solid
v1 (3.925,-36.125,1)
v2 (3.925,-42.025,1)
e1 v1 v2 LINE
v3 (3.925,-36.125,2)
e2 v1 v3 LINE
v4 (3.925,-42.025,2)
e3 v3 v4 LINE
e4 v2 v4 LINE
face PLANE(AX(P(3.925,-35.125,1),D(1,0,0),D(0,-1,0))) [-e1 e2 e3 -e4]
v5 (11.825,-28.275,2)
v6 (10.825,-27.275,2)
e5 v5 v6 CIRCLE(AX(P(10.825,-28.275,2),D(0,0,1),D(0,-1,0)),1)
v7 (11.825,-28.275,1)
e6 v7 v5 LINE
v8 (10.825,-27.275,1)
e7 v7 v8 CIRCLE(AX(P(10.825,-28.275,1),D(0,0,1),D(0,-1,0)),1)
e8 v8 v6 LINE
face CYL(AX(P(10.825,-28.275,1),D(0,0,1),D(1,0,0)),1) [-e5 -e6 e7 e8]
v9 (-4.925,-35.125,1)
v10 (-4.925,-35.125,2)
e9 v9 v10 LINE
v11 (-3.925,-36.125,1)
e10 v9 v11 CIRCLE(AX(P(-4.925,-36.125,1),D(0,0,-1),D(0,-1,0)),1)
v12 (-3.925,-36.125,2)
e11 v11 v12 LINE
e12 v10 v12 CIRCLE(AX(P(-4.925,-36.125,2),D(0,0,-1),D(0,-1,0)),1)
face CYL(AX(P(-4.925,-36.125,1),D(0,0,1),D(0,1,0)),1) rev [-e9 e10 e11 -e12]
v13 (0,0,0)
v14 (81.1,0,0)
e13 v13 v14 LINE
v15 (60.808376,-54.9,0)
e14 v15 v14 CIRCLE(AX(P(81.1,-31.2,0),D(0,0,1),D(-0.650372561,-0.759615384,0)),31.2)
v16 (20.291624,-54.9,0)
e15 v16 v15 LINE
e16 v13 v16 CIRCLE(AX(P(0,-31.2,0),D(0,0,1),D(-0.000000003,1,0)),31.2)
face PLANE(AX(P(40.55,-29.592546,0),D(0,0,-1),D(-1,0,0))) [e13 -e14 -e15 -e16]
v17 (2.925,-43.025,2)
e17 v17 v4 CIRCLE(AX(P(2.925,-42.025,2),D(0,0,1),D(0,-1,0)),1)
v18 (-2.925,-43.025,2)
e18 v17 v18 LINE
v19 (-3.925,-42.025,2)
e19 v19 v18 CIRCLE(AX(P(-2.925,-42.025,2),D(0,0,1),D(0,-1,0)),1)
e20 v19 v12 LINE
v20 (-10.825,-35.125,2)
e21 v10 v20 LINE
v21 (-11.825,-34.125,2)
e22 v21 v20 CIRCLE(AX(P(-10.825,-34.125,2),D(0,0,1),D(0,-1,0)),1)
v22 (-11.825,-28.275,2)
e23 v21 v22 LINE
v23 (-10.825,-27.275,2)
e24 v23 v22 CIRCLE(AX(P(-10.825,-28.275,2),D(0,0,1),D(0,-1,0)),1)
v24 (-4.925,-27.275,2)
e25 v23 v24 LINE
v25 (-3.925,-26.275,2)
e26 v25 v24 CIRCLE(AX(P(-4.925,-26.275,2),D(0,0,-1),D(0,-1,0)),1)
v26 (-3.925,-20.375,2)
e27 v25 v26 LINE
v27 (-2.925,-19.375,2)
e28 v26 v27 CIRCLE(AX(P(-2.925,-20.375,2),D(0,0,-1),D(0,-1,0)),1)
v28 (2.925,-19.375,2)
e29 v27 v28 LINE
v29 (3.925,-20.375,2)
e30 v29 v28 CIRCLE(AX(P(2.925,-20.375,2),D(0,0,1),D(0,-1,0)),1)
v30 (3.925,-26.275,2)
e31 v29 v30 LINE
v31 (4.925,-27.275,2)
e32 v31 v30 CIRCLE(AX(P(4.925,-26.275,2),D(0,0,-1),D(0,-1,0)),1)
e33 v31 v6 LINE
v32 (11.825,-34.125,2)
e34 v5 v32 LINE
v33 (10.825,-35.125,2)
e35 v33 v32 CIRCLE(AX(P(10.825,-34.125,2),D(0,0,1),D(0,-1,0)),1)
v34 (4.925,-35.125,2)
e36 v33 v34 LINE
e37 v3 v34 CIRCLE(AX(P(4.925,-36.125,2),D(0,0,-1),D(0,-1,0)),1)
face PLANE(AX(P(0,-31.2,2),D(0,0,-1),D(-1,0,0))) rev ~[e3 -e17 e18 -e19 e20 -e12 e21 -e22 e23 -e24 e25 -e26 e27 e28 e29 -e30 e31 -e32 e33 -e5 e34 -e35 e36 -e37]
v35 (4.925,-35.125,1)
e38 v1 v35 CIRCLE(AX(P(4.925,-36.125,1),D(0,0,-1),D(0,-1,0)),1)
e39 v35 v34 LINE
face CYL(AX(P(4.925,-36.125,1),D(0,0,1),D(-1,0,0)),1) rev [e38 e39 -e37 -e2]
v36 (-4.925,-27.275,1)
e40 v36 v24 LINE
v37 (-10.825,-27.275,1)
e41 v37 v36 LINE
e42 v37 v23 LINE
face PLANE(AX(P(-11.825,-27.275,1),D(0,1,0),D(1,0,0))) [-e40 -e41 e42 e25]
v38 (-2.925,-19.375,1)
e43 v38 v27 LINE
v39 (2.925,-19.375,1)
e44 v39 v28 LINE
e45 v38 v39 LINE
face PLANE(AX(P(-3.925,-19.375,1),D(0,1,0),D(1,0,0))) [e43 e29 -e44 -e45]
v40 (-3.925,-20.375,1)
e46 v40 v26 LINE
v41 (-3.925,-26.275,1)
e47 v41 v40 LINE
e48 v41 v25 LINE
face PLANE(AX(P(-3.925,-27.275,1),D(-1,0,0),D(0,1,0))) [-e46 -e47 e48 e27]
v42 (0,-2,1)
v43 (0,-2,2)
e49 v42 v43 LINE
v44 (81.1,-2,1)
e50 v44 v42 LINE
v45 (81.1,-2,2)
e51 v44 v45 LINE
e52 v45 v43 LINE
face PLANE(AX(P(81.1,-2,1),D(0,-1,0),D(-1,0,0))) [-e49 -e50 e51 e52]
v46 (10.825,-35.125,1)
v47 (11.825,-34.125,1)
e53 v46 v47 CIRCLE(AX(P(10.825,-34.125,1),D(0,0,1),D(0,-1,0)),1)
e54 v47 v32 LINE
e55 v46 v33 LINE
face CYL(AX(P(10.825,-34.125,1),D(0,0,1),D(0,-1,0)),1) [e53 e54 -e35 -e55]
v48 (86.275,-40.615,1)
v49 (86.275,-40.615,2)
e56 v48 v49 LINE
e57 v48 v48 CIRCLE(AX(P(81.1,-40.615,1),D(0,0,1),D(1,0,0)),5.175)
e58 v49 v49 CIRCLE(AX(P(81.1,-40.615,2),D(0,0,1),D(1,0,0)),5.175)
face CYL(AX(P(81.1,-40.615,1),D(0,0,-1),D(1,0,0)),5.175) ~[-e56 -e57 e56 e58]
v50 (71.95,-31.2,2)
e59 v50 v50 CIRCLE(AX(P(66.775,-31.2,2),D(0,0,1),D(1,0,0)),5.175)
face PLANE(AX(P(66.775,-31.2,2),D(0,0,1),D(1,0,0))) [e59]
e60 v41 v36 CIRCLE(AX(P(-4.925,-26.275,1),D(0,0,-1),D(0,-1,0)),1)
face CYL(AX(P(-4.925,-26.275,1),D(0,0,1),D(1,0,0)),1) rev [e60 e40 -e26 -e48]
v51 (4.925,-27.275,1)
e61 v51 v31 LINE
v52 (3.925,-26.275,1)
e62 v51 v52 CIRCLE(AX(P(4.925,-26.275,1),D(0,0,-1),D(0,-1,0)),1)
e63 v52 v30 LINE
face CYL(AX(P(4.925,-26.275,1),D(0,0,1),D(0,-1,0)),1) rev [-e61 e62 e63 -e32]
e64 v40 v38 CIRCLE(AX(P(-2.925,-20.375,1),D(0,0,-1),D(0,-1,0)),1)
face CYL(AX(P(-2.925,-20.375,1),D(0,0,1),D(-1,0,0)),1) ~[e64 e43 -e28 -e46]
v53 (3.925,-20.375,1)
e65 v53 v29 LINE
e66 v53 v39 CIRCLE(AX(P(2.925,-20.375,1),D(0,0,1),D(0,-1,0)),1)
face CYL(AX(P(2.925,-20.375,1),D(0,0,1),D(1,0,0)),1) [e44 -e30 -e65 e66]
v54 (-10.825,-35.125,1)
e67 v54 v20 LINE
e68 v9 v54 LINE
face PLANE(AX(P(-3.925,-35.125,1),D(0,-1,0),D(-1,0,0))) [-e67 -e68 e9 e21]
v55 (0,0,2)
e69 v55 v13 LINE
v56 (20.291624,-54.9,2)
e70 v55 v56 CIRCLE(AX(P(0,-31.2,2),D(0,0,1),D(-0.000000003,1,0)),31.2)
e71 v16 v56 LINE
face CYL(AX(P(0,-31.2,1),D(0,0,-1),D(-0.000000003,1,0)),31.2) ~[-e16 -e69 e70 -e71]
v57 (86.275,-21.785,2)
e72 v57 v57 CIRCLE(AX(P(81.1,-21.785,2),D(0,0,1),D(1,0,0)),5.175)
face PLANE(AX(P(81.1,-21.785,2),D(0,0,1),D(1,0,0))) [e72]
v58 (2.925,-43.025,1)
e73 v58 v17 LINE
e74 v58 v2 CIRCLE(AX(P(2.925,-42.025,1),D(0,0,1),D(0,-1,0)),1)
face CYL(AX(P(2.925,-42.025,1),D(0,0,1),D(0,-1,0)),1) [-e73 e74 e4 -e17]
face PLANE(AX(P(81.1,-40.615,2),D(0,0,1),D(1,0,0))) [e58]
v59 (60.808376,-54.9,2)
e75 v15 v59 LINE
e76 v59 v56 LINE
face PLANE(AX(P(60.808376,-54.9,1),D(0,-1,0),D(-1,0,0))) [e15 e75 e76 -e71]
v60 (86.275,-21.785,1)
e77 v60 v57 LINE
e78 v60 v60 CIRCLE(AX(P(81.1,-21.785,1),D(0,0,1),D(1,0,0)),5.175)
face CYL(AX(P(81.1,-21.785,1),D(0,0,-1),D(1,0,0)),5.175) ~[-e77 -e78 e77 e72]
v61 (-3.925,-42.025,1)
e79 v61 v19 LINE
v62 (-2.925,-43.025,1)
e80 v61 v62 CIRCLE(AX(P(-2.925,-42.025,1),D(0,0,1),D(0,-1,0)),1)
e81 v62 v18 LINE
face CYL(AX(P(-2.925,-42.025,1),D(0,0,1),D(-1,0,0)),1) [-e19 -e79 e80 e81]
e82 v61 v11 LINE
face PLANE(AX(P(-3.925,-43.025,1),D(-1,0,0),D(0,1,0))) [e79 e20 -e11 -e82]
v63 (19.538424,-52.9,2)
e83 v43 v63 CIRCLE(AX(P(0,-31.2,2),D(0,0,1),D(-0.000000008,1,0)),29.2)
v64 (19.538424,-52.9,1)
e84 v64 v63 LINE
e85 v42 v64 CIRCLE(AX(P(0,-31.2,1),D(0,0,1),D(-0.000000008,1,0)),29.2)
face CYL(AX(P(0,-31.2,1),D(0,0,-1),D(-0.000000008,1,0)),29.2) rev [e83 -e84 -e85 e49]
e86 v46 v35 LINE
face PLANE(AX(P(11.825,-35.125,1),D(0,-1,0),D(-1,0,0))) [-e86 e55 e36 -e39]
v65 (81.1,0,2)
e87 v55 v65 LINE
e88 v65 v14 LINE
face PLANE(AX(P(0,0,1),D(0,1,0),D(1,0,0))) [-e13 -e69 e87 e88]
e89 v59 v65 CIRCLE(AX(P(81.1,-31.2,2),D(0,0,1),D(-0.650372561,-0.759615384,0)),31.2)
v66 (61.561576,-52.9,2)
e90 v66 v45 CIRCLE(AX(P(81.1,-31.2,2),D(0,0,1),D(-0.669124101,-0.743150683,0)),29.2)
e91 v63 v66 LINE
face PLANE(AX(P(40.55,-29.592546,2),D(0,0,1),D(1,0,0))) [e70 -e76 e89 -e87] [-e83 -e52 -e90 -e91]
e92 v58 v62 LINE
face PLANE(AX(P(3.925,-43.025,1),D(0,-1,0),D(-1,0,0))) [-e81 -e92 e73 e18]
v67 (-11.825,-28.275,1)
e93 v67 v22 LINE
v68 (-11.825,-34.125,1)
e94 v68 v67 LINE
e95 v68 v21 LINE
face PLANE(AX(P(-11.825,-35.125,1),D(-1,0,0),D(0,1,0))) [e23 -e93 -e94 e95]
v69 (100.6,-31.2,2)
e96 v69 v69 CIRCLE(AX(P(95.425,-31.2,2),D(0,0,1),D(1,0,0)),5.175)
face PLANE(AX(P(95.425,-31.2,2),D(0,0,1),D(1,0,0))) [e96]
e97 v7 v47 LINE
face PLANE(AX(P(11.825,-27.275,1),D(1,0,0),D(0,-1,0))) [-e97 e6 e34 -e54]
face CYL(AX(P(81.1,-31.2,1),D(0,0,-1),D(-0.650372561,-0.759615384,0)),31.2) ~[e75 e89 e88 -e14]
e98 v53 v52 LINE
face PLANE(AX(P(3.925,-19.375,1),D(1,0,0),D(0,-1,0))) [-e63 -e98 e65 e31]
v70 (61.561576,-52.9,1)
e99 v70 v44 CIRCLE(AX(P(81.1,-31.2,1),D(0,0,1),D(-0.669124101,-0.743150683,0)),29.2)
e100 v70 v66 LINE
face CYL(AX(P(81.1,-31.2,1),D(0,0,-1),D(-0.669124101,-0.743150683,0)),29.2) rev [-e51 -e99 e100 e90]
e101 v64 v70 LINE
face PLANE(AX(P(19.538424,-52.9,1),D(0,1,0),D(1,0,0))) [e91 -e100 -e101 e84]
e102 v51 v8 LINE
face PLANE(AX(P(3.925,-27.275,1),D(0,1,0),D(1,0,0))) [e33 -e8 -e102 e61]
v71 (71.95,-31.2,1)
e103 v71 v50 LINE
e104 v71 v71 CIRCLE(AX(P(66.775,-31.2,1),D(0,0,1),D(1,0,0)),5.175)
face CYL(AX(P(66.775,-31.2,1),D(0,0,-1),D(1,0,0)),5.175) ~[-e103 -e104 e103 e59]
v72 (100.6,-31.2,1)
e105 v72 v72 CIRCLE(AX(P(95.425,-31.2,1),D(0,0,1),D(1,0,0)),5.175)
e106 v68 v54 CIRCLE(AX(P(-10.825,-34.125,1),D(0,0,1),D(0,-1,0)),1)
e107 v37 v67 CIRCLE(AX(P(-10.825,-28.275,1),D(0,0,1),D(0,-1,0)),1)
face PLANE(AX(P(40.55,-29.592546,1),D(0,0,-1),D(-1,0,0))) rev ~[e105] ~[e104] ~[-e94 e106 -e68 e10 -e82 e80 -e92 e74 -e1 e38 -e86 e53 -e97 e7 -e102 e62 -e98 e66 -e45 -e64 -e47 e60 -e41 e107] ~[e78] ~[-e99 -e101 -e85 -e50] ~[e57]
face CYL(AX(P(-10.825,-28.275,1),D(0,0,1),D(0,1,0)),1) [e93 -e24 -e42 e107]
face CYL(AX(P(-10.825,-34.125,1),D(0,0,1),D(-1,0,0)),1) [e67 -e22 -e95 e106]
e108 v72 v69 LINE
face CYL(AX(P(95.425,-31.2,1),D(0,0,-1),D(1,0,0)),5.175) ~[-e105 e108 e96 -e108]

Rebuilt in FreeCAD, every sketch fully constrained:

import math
import FreeCAD as App
import Part
import Sketcher

V = App.Vector


def edges_at(feature, points):
    """Names of the edges that pass closest to the given points."""
    edges = feature.Shape.Edges
    near = lambda p: min(range(len(edges)), key=lambda i: edges[i].distToShape(Part.Vertex(*p))[0])
    return sorted({f"Edge{near(p) + 1}" for p in points})

doc = App.newDocument("Part")
params = doc.addObject("Spreadsheet::Sheet", "Params")
for row, (alias, value) in enumerate([
    ("sketch1_radius", "31.2 mm"),
    ("sketch1_width", "81.1 mm"),
    ("pad1_length", "1 mm"),
    ("sketch2_radius", "31.2 mm"),
    ("sketch2_radius2", "29.2 mm"),
    ("sketch2_diameter", "10.35 mm"),
    ("sketch2_width", "81.1 mm"),
    ("sketch2_width2", "7.9 mm"),
    ("pad2_length", "1 mm"),
    ("fillet_radius", "1 mm"),
], start=1):
    params.set(f"A{row}", alias)
    params.set(f"B{row}", "=" + value)
    params.setAlias(f"B{row}", alias)

body = doc.addObject("PartDesign::Body", "Body")

# Sketch on XY plane
sketch1 = doc.addObject("Sketcher::SketchObject", "Sketch")
body.addObject(sketch1)
sketch1.AttachmentSupport = (doc.XY_Plane, [""])
sketch1.MapMode = "FlatFace"
sketch1.addGeometry(Part.LineSegment(V(81.1, 0, 0), V(0, 0, 0)), False)
sketch1.addGeometry(Part.ArcOfCircle(Part.Circle(V(0, -31.2, 0), V(0, 0, 1), 31.2), math.radians(90), math.radians(310.569697)), False)
sketch1.addGeometry(Part.LineSegment(V(20.291624, -54.9, 0), V(60.808376, -54.9, 0)), False)
sketch1.addGeometry(Part.ArcOfCircle(Part.Circle(V(81.1, -31.2, 0), V(0, 0, 1), 31.2), math.radians(-130.569697), math.radians(90)), False)
sketch1.addConstraint(Sketcher.Constraint("Tangent", 0, 2, 1, 1))
sketch1.addConstraint(Sketcher.Constraint("Coincident", 1, 2, 2, 1))
sketch1.addConstraint(Sketcher.Constraint("Coincident", 2, 2, 3, 1))
sketch1.addConstraint(Sketcher.Constraint("Tangent", 3, 2, 0, 1))
sketch1.addConstraint(Sketcher.Constraint("Horizontal", 0))
sketch1.addConstraint(Sketcher.Constraint("Horizontal", 2))
sketch1.addConstraint(Sketcher.Constraint("Coincident", 0, 2, -1, 1))
sketch1.addConstraint(Sketcher.Constraint("Equal", 1, 3))
sketch1.addConstraint(Sketcher.Constraint("Radius", 1, 31.2))
sketch1.addConstraint(Sketcher.Constraint("DistanceX", 0, 2, 0, 1, 81.1))
sketch1.addConstraint(Sketcher.Constraint("DistanceY", 1, 2, -1, 1, 54.9))
sketch1.setExpression("Constraints[8]", "Params.sketch1_radius")
sketch1.setExpression("Constraints[9]", "Params.sketch1_width")
pad1 = doc.addObject("PartDesign::Pad", "Pad")
body.addObject(pad1)
pad1.Profile = sketch1
pad1.setExpression("Length", "Params.pad1_length")

# Sketch on XY plane
sketch2 = doc.addObject("Sketcher::SketchObject", "Sketch001")
body.addObject(sketch2)
sketch2.AttachmentSupport = (doc.XY_Plane, [""])
sketch2.MapMode = "FlatFace"
sketch2.AttachmentOffset = App.Placement(V(0, 0, 1), App.Rotation())
sketch2.addGeometry(Part.ArcOfCircle(Part.Circle(V(0, -31.2, 0), V(0, 0, 1), 31.2), math.radians(90), math.radians(310.569697)), False)
sketch2.addGeometry(Part.LineSegment(V(20.291624, -54.9, 0), V(60.808376, -54.9, 0)), False)
sketch2.addGeometry(Part.ArcOfCircle(Part.Circle(V(81.1, -31.2, 0), V(0, 0, 1), 31.2), math.radians(-130.569697), math.radians(90)), False)
sketch2.addGeometry(Part.LineSegment(V(81.1, 0, 0), V(0, 0, 0)), False)
sketch2.addGeometry(Part.ArcOfCircle(Part.Circle(V(0, -31.2, 0), V(0, 0, 1), 29.2), math.radians(90), math.radians(311.999498)), False)
sketch2.addGeometry(Part.LineSegment(V(0, -2, 0), V(81.1, -2, 0)), False)
sketch2.addGeometry(Part.ArcOfCircle(Part.Circle(V(81.1, -31.2, 0), V(0, 0, 1), 29.2), math.radians(-131.999498), math.radians(90)), False)
sketch2.addGeometry(Part.LineSegment(V(61.561576, -52.9, 0), V(19.538424, -52.9, 0)), False)
sketch2.addGeometry(Part.Circle(V(81.1, -21.785, 0), V(0, 0, 1), 5.175), False)
sketch2.addGeometry(Part.Circle(V(95.425, -31.2, 0), V(0, 0, 1), 5.175), False)
sketch2.addGeometry(Part.Circle(V(81.1, -40.615, 0), V(0, 0, 1), 5.175), False)
sketch2.addGeometry(Part.Circle(V(66.775, -31.2, 0), V(0, 0, 1), 5.175), False)
sketch2.addGeometry(Part.LineSegment(V(3.925, -19.375, 0), V(-3.925, -19.375, 0)), False)
sketch2.addGeometry(Part.LineSegment(V(-3.925, -19.375, 0), V(-3.925, -27.275, 0)), False)
sketch2.addGeometry(Part.LineSegment(V(-3.925, -27.275, 0), V(-11.825, -27.275, 0)), False)
sketch2.addGeometry(Part.LineSegment(V(-11.825, -27.275, 0), V(-11.825, -35.125, 0)), False)
sketch2.addGeometry(Part.LineSegment(V(-11.825, -35.125, 0), V(-3.925, -35.125, 0)), False)
sketch2.addGeometry(Part.LineSegment(V(-3.925, -35.125, 0), V(-3.925, -43.025, 0)), False)
sketch2.addGeometry(Part.LineSegment(V(-3.925, -43.025, 0), V(3.925, -43.025, 0)), False)
sketch2.addGeometry(Part.LineSegment(V(3.925, -43.025, 0), V(3.925, -35.125, 0)), False)
sketch2.addGeometry(Part.LineSegment(V(3.925, -35.125, 0), V(11.825, -35.125, 0)), False)
sketch2.addGeometry(Part.LineSegment(V(11.825, -35.125, 0), V(11.825, -27.275, 0)), False)
sketch2.addGeometry(Part.LineSegment(V(11.825, -27.275, 0), V(3.925, -27.275, 0)), False)
sketch2.addGeometry(Part.LineSegment(V(3.925, -27.275, 0), V(3.925, -19.375, 0)), False)
sketch2.addConstraint(Sketcher.Constraint("Coincident", 0, 2, 1, 1))
sketch2.addConstraint(Sketcher.Constraint("Coincident", 1, 2, 2, 1))
sketch2.addConstraint(Sketcher.Constraint("Tangent", 2, 2, 3, 1))
sketch2.addConstraint(Sketcher.Constraint("Tangent", 3, 2, 0, 1))
sketch2.addConstraint(Sketcher.Constraint("Tangent", 4, 1, 5, 1))
sketch2.addConstraint(Sketcher.Constraint("Tangent", 5, 2, 6, 2))
sketch2.addConstraint(Sketcher.Constraint("Coincident", 6, 1, 7, 1))
sketch2.addConstraint(Sketcher.Constraint("Coincident", 7, 2, 4, 2))
sketch2.addConstraint(Sketcher.Constraint("Coincident", 12, 2, 13, 1))
sketch2.addConstraint(Sketcher.Constraint("Coincident", 13, 2, 14, 1))
sketch2.addConstraint(Sketcher.Constraint("Coincident", 14, 2, 15, 1))
sketch2.addConstraint(Sketcher.Constraint("Coincident", 15, 2, 16, 1))
sketch2.addConstraint(Sketcher.Constraint("Coincident", 16, 2, 17, 1))
sketch2.addConstraint(Sketcher.Constraint("Coincident", 17, 2, 18, 1))
sketch2.addConstraint(Sketcher.Constraint("Coincident", 18, 2, 19, 1))
sketch2.addConstraint(Sketcher.Constraint("Coincident", 19, 2, 20, 1))
sketch2.addConstraint(Sketcher.Constraint("Coincident", 20, 2, 21, 1))
sketch2.addConstraint(Sketcher.Constraint("Coincident", 21, 2, 22, 1))
sketch2.addConstraint(Sketcher.Constraint("Coincident", 22, 2, 23, 1))
sketch2.addConstraint(Sketcher.Constraint("Coincident", 23, 2, 12, 1))
sketch2.addConstraint(Sketcher.Constraint("Horizontal", 1))
sketch2.addConstraint(Sketcher.Constraint("Horizontal", 3))
sketch2.addConstraint(Sketcher.Constraint("Horizontal", 5))
sketch2.addConstraint(Sketcher.Constraint("Horizontal", 7))
sketch2.addConstraint(Sketcher.Constraint("Horizontal", 12))
sketch2.addConstraint(Sketcher.Constraint("Vertical", 13))
sketch2.addConstraint(Sketcher.Constraint("Horizontal", 14))
sketch2.addConstraint(Sketcher.Constraint("Vertical", 15))
sketch2.addConstraint(Sketcher.Constraint("Horizontal", 16))
sketch2.addConstraint(Sketcher.Constraint("Vertical", 17))
sketch2.addConstraint(Sketcher.Constraint("Horizontal", 18))
sketch2.addConstraint(Sketcher.Constraint("Vertical", 19))
sketch2.addConstraint(Sketcher.Constraint("Horizontal", 20))
sketch2.addConstraint(Sketcher.Constraint("Vertical", 21))
sketch2.addConstraint(Sketcher.Constraint("Horizontal", 22))
sketch2.addConstraint(Sketcher.Constraint("Vertical", 23))
sketch2.addConstraint(Sketcher.Constraint("Coincident", 3, 2, -1, 1))
sketch2.addConstraint(Sketcher.Constraint("Coincident", 4, 3, 0, 3))
sketch2.addConstraint(Sketcher.Constraint("Coincident", 6, 3, 2, 3))
sketch2.addConstraint(Sketcher.Constraint("Equal", 0, 2))
sketch2.addConstraint(Sketcher.Constraint("Equal", 8, 9))
sketch2.addConstraint(Sketcher.Constraint("Equal", 9, 10))
sketch2.addConstraint(Sketcher.Constraint("Equal", 10, 11))
sketch2.addConstraint(Sketcher.Constraint("Symmetric", 16, 2, 19, 2, -2))
sketch2.addConstraint(Sketcher.Constraint("Symmetric", 14, 2, 21, 2, -2))
sketch2.addConstraint(Sketcher.Constraint("Horizontal", 6, 3, 9, 3))
sketch2.addConstraint(Sketcher.Constraint("Horizontal", 9, 3, 11, 3))
sketch2.addConstraint(Sketcher.Constraint("Vertical", 6, 3, 8, 3))
sketch2.addConstraint(Sketcher.Constraint("Vertical", 8, 3, 10, 3))
sketch2.addConstraint(Sketcher.Constraint("Vertical", 13, 2, 16, 2))
sketch2.addConstraint(Sketcher.Constraint("Vertical", 19, 2, 22, 2))
sketch2.addConstraint(Sketcher.Constraint("Equal", 22, 13))
sketch2.addConstraint(Sketcher.Constraint("Equal", 18, 15))
sketch2.addConstraint(Sketcher.Constraint("Equal", 13, 17))
sketch2.addConstraint(Sketcher.Constraint("Radius", 0, 31.2))
sketch2.addConstraint(Sketcher.Constraint("Radius", 4, 29.2))
sketch2.addConstraint(Sketcher.Constraint("Diameter", 8, 10.35))
sketch2.addConstraint(Sketcher.Constraint("DistanceX", 3, 2, 3, 1, 81.1))
sketch2.addConstraint(Sketcher.Constraint("DistanceX", 14, 2, 14, 1, 7.9))
sketch2.addConstraint(Sketcher.Constraint("DistanceY", 1, 2, 6, 1, 2.0))
sketch2.addConstraint(Sketcher.Constraint("DistanceX", 12, 2, 12, 1, 7.85))
sketch2.addConstraint(Sketcher.Constraint("DistanceY", 0, 2, -1, 1, 54.9))
sketch2.addConstraint(Sketcher.Constraint("DistanceY", 10, 3, 8, 3, 18.83))
sketch2.addConstraint(Sketcher.Constraint("DistanceX", 11, 3, 9, 3, 28.65))
sketch2.addConstraint(Sketcher.Constraint("DistanceY", 8, 3, -1, 1, 21.785))
sketch2.addConstraint(Sketcher.Constraint("DistanceX", -1, 1, 9, 3, 95.425))
sketch2.addConstraint(Sketcher.Constraint("DistanceY", 12, 2, -1, 1, 19.375))
sketch2.setExpression("Constraints[54]", "Params.sketch2_radius")
sketch2.setExpression("Constraints[55]", "Params.sketch2_radius2")
sketch2.setExpression("Constraints[56]", "Params.sketch2_diameter")
sketch2.setExpression("Constraints[57]", "Params.sketch2_width")
sketch2.setExpression("Constraints[58]", "Params.sketch2_width2")
pad2 = doc.addObject("PartDesign::Pad", "Pad001")
body.addObject(pad2)
pad2.Profile = sketch2
pad2.setExpression("Length", "Params.pad2_length")
doc.recompute()

fillet = doc.addObject("PartDesign::Fillet", "Fillet")
body.addObject(fillet)
fillet.Base = (pad2, edges_at(pad2, [
    (3.925, -35.125, 1.5),
    (3.925, -43.025, 1.5),
    (11.825, -35.125, 1.5),
    (11.825, -27.275, 1.5),
    (3.925, -19.375, 1.5),
    (-3.925, -43.025, 1.5),
    (-3.925, -35.125, 1.5),
    (-11.825, -35.125, 1.5),
    (-11.825, -27.275, 1.5),
    (-3.925, -27.275, 1.5),
    (-3.925, -19.375, 1.5),
    (3.925, -27.275, 1.5),
]))
fillet.setExpression("Radius", "Params.fillet_radius")

doc.recompute()
